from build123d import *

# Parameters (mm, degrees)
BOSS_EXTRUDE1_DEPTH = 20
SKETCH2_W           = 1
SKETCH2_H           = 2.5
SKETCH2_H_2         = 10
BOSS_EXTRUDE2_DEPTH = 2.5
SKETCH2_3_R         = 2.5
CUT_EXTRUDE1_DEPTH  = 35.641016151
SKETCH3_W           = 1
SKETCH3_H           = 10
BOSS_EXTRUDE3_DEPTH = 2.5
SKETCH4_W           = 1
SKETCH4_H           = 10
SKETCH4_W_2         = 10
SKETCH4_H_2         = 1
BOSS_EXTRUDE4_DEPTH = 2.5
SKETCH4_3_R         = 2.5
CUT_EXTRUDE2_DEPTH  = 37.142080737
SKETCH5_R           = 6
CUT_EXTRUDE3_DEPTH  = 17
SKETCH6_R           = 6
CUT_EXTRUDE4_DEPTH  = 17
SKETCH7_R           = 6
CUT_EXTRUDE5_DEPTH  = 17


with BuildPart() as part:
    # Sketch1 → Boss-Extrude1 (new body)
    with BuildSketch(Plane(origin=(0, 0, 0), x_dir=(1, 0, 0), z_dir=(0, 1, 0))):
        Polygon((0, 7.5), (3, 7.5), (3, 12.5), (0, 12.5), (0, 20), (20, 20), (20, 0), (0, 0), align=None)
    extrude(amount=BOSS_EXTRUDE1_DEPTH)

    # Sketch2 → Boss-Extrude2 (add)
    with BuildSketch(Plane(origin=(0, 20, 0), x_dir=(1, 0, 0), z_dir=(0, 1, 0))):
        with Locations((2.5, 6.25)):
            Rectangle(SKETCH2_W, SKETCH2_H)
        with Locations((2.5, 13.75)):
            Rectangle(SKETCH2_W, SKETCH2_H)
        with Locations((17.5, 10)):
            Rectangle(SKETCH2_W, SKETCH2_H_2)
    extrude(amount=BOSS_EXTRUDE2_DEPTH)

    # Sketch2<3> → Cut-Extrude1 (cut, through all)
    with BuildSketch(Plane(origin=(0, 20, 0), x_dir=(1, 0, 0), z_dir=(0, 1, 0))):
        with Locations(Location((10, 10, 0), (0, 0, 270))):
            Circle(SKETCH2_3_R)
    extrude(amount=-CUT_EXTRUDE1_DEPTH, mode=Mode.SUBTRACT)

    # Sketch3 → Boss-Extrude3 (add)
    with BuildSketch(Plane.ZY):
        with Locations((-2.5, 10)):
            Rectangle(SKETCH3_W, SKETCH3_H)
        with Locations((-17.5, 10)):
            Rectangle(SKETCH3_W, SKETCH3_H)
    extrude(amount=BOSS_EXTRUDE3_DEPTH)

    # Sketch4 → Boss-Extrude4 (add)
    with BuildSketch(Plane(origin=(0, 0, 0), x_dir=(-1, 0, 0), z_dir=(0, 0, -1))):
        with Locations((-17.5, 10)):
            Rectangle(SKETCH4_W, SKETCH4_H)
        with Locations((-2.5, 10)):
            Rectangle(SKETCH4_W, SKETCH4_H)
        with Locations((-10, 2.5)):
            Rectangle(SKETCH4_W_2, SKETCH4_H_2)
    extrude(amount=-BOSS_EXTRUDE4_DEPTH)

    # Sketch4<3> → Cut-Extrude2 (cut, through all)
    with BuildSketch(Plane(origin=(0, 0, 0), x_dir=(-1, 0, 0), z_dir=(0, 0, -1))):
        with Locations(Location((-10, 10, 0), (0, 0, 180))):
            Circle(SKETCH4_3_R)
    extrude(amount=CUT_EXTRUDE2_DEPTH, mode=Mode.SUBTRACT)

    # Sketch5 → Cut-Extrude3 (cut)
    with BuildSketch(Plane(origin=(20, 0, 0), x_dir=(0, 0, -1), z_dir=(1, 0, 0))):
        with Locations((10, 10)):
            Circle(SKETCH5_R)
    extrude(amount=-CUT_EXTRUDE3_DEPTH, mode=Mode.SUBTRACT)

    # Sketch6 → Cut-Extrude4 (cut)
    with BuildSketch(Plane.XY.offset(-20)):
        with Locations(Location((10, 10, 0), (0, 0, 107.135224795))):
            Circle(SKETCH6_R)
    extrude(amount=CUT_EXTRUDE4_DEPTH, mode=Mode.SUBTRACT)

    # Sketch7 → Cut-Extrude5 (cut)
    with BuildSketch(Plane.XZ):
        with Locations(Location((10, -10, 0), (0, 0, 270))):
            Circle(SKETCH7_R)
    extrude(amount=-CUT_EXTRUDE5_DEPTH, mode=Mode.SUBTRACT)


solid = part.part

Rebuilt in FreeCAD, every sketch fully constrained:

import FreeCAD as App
import Part
import Sketcher
Q = App.Units.Quantity


def add_polygon(sketch, points):
    """Adds a closed chain of lines whose ends are joined by coincident constraints."""
    first, n = sketch.GeometryCount, len(points)
    for a, b in zip(points, points[1:] + points[:1]):
        sketch.addGeometry(Part.LineSegment(App.Vector(*a, 0), App.Vector(*b, 0)), False)
    for i in range(n):
        sketch.addConstraint(Sketcher.Constraint("Coincident", first + i, 2, first + (i + 1) % n, 1))

doc = App.newDocument("Part")
body = doc.addObject("PartDesign::Body", "Body")

sketch1 = body.newObject("Sketcher::SketchObject", "Sketch")
sketch1.AttachmentSupport = (doc.getObject("XZ_Plane"), [""])
sketch1.MapMode = "FlatFace"
add_polygon(sketch1, [(3, -7.5), (0, -7.5), (0, 0), (20, 0), (20, -20), (0, -20), (0, -12.5), (3, -12.5)])
sketch1.addConstraint([
    Sketcher.Constraint("Horizontal", 0),
    Sketcher.Constraint("Vertical", 1),
    Sketcher.Constraint("Horizontal", 2),
    Sketcher.Constraint("Vertical", 3),
    Sketcher.Constraint("Horizontal", 4),
    Sketcher.Constraint("Vertical", 5),
    Sketcher.Constraint("Horizontal", 6),
    Sketcher.Constraint("Vertical", 7),
    Sketcher.Constraint("Coincident", 1, 2, -1, 1),
    Sketcher.Constraint("PointOnObject", 4, 2, -2),
    Sketcher.Constraint("Equal", 4, 3),
    Sketcher.Constraint("Equal", 1, 5),
    Sketcher.Constraint("DistanceX", 0, 2, 0, 1, Q("3 mm")),
    Sketcher.Constraint("DistanceX", 2, 1, 2, 2, Q("20 mm")),
    Sketcher.Constraint("DistanceY", 7, 1, 7, 2, Q("5 mm")),
])
pad1 = body.newObject("PartDesign::Pad", "Pad")
pad1.Profile = sketch1
pad1.Length = 20
pad1.Reversed = True

sketch2 = body.newObject("Sketcher::SketchObject", "Sketch001")
sketch2.AttachmentSupport = (doc.getObject("XZ_Plane"), [""])
sketch2.MapMode = "FlatFace"
sketch2.AttachmentOffset = App.Placement(App.Vector(0, 0, -20), App.Rotation())
add_polygon(sketch2, [(2, -7.5), (2, -5), (3, -5), (3, -7.5)])
add_polygon(sketch2, [(2, -15), (2, -12.5), (3, -12.5), (3, -15)])
add_polygon(sketch2, [(17, -15), (17, -5), (18, -5), (18, -15)])
sketch2.addConstraint([
    Sketcher.Constraint("Vertical", 0),
    Sketcher.Constraint("Horizontal", 1),
    Sketcher.Constraint("Vertical", 2),
    Sketcher.Constraint("Horizontal", 3),
    Sketcher.Constraint("Vertical", 4),
    Sketcher.Constraint("Horizontal", 5),
    Sketcher.Constraint("Vertical", 6),
    Sketcher.Constraint("Horizontal", 7),
    Sketcher.Constraint("Vertical", 8),
    Sketcher.Constraint("Horizontal", 9),
    Sketcher.Constraint("Vertical", 10),
    Sketcher.Constraint("Horizontal", 11),
    Sketcher.Constraint("Horizontal", 1, 2, 8, 2),
    Sketcher.Constraint("Horizontal", 7, 2, 10, 2),
    Sketcher.Constraint("Vertical", 3, 2, 4, 2),
    Sketcher.Constraint("Vertical", 2, 2, 5, 2),
    Sketcher.Constraint("Equal", 7, 9),
    Sketcher.Constraint("Equal", 2, 4),
    Sketcher.Constraint("DistanceX", 1, 1, 1, 2, Q("1 mm")),
    Sketcher.Constraint("DistanceY", 8, 1, 8, 2, Q("10 mm")),
    Sketcher.Constraint("DistanceY", 0, 1, 0, 2, Q("2.5 mm")),
    Sketcher.Constraint("DistanceX", -1, 1, 0, 2, Q("2 mm")),
    Sketcher.Constraint("DistanceY", 0, 2, -1, 1, Q("5 mm")),
    Sketcher.Constraint("DistanceX", -1, 1, 8, 2, Q("17 mm")),
])
pad2 = body.newObject("PartDesign::Pad", "Pad001")
pad2.Profile = sketch2
pad2.Length = 2.5
pad2.Reversed = True

sketch3 = body.newObject("Sketcher::SketchObject", "Sketch002")
sketch3.AttachmentSupport = (doc.getObject("XZ_Plane"), [""])
sketch3.MapMode = "FlatFace"
sketch3.AttachmentOffset = App.Placement(App.Vector(0, 0, -20), App.Rotation())
sketch3.addGeometry(Part.Circle(App.Vector(10, -10, 0), App.Vector(0, 0, 1), 2.5), False)
sketch3.addConstraint([
    Sketcher.Constraint("Diameter", 0, Q("5 mm")),
    Sketcher.Constraint("DistanceX", -1, 1, 0, 3, Q("10 mm")),
    Sketcher.Constraint("DistanceY", 0, 3, -1, 1, Q("10 mm")),
])
pocket1 = body.newObject("PartDesign::Pocket", "Pocket")
pocket1.Profile = sketch3
pocket1.Type = "ThroughAll"
pocket1.Reversed = True

sketch4 = body.newObject("Sketcher::SketchObject", "Sketch003")
sketch4.AttachmentSupport = (doc.getObject("YZ_Plane"), [""])
sketch4.MapMode = "FlatFace"
add_polygon(sketch4, [(15, -3), (5, -3), (5, -2), (15, -2)])
add_polygon(sketch4, [(15, -18), (5, -18), (5, -17), (15, -17)])
sketch4.addConstraint([
    Sketcher.Constraint("Horizontal", 0),
    Sketcher.Constraint("Vertical", 1),
    Sketcher.Constraint("Horizontal", 2),
    Sketcher.Constraint("Vertical", 3),
    Sketcher.Constraint("Horizontal", 4),
    Sketcher.Constraint("Vertical", 5),
    Sketcher.Constraint("Horizontal", 6),
    Sketcher.Constraint("Vertical", 7),
    Sketcher.Constraint("Vertical", 1, 2, 4, 2),
    Sketcher.Constraint("Vertical", 3, 2, 6, 2),
    Sketcher.Constraint("Equal", 3, 5),
    Sketcher.Constraint("DistanceX", 0, 2, 0, 1, Q("10 mm")),
    Sketcher.Constraint("DistanceY", 1, 1, 1, 2, Q("1 mm")),
    Sketcher.Constraint("DistanceX", -1, 1, 0, 2, Q("5 mm")),
    Sketcher.Constraint("DistanceY", 0, 2, -1, 1, Q("3 mm")),
    Sketcher.Constraint("DistanceY", 4, 2, -1, 1, Q("18 mm")),
])
pad3 = body.newObject("PartDesign::Pad", "Pad002")
pad3.Profile = sketch4
pad3.Length = 2.5
pad3.Reversed = True

sketch5 = body.newObject("Sketcher::SketchObject", "Sketch004")
sketch5.AttachmentSupport = (doc.getObject("XY_Plane"), [""])
sketch5.MapMode = "FlatFace"
add_polygon(sketch5, [(18, 15), (18, 5), (17, 5), (17, 15)])
add_polygon(sketch5, [(3, 15), (3, 5), (2, 5), (2, 15)])
add_polygon(sketch5, [(15, 3), (15, 2), (5, 2), (5, 3)])
sketch5.addConstraint([
    Sketcher.Constraint("Vertical", 0),
    Sketcher.Constraint("Horizontal", 1),
    Sketcher.Constraint("Vertical", 2),
    Sketcher.Constraint("Horizontal", 3),
    Sketcher.Constraint("Vertical", 4),
    Sketcher.Constraint("Horizontal", 5),
    Sketcher.Constraint("Vertical", 6),
    Sketcher.Constraint("Horizontal", 7),
    Sketcher.Constraint("Vertical", 8),
    Sketcher.Constraint("Horizontal", 9),
    Sketcher.Constraint("Vertical", 10),
    Sketcher.Constraint("Horizontal", 11),
    Sketcher.Constraint("Horizontal", 1, 2, 4, 2),
    Sketcher.Constraint("Horizontal", 3, 2, 6, 2),
    Sketcher.Constraint("Equal", 3, 5),
    Sketcher.Constraint("Equal", 11, 0),
    Sketcher.Constraint("Equal", 7, 8),
    Sketcher.Constraint("DistanceX", 1, 2, 1, 1, Q("1 mm")),
    Sketcher.Constraint("DistanceX", 9, 2, 9, 1, Q("10 mm")),
    Sketcher.Constraint("DistanceX", -1, 1, 0, 2, Q("18 mm")),
    Sketcher.Constraint("DistanceY", -1, 1, 0, 2, Q("5 mm")),
    Sketcher.Constraint("DistanceX", -1, 1, 4, 2, Q("3 mm")),
    Sketcher.Constraint("DistanceX", -1, 1, 8, 2, Q("15 mm")),
    Sketcher.Constraint("DistanceY", -1, 1, 8, 2, Q("2 mm")),
])
pad4 = body.newObject("PartDesign::Pad", "Pad003")
pad4.Profile = sketch5
pad4.Length = 2.5

sketch6 = body.newObject("Sketcher::SketchObject", "Sketch005")
sketch6.AttachmentSupport = (doc.getObject("XY_Plane"), [""])
sketch6.MapMode = "FlatFace"
sketch6.addGeometry(Part.Circle(App.Vector(10, 10, 0), App.Vector(0, 0, 1), 2.5), False)
sketch6.addConstraint([
    Sketcher.Constraint("Diameter", 0, Q("5 mm")),
    Sketcher.Constraint("DistanceX", -1, 1, 0, 3, Q("10 mm")),
    Sketcher.Constraint("DistanceY", -1, 1, 0, 3, Q("10 mm")),
])
pocket2 = body.newObject("PartDesign::Pocket", "Pocket001")
pocket2.Profile = sketch6
pocket2.Type = "ThroughAll"

sketch7 = body.newObject("Sketcher::SketchObject", "Sketch006")
sketch7.AttachmentSupport = (doc.getObject("YZ_Plane"), [""])
sketch7.MapMode = "FlatFace"
sketch7.AttachmentOffset = App.Placement(App.Vector(0, 0, 20), App.Rotation())
sketch7.addGeometry(Part.Circle(App.Vector(10, -10, 0), App.Vector(0, 0, 1), 6), False)
sketch7.addConstraint([
    Sketcher.Constraint("Diameter", 0, Q("12 mm")),
    Sketcher.Constraint("DistanceX", -1, 1, 0, 3, Q("10 mm")),
    Sketcher.Constraint("DistanceY", 0, 3, -1, 1, Q("10 mm")),
])
pocket3 = body.newObject("PartDesign::Pocket", "Pocket002")
pocket3.Profile = sketch7
pocket3.Length = 17

sketch8 = body.newObject("Sketcher::SketchObject", "Sketch007")
sketch8.AttachmentSupport = (doc.getObject("XY_Plane"), [""])
sketch8.MapMode = "FlatFace"
sketch8.AttachmentOffset = App.Placement(App.Vector(0, 0, -20), App.Rotation())
sketch8.addGeometry(Part.Circle(App.Vector(10, 10, 0), App.Vector(0, 0, 1), 6), False)
sketch8.addConstraint([
    Sketcher.Constraint("Diameter", 0, Q("12 mm")),
    Sketcher.Constraint("DistanceX", -1, 1, 0, 3, Q("10 mm")),
    Sketcher.Constraint("DistanceY", -1, 1, 0, 3, Q("10 mm")),
])
pocket4 = body.newObject("PartDesign::Pocket", "Pocket003")
pocket4.Profile = sketch8
pocket4.Length = 17
pocket4.Reversed = True

sketch9 = body.newObject("Sketcher::SketchObject", "Sketch008")
sketch9.AttachmentSupport = (doc.getObject("XZ_Plane"), [""])
sketch9.MapMode = "FlatFace"
sketch9.addGeometry(Part.Circle(App.Vector(10, -10, 0), App.Vector(0, 0, 1), 6), False)
sketch9.addConstraint([
    Sketcher.Constraint("Diameter", 0, Q("12 mm")),
    Sketcher.Constraint("DistanceX", -1, 1, 0, 3, Q("10 mm")),
    Sketcher.Constraint("DistanceY", 0, 3, -1, 1, Q("10 mm")),
])
pocket5 = body.newObject("PartDesign::Pocket", "Pocket004")
pocket5.Profile = sketch9
pocket5.Length = 17

doc.recompute()
